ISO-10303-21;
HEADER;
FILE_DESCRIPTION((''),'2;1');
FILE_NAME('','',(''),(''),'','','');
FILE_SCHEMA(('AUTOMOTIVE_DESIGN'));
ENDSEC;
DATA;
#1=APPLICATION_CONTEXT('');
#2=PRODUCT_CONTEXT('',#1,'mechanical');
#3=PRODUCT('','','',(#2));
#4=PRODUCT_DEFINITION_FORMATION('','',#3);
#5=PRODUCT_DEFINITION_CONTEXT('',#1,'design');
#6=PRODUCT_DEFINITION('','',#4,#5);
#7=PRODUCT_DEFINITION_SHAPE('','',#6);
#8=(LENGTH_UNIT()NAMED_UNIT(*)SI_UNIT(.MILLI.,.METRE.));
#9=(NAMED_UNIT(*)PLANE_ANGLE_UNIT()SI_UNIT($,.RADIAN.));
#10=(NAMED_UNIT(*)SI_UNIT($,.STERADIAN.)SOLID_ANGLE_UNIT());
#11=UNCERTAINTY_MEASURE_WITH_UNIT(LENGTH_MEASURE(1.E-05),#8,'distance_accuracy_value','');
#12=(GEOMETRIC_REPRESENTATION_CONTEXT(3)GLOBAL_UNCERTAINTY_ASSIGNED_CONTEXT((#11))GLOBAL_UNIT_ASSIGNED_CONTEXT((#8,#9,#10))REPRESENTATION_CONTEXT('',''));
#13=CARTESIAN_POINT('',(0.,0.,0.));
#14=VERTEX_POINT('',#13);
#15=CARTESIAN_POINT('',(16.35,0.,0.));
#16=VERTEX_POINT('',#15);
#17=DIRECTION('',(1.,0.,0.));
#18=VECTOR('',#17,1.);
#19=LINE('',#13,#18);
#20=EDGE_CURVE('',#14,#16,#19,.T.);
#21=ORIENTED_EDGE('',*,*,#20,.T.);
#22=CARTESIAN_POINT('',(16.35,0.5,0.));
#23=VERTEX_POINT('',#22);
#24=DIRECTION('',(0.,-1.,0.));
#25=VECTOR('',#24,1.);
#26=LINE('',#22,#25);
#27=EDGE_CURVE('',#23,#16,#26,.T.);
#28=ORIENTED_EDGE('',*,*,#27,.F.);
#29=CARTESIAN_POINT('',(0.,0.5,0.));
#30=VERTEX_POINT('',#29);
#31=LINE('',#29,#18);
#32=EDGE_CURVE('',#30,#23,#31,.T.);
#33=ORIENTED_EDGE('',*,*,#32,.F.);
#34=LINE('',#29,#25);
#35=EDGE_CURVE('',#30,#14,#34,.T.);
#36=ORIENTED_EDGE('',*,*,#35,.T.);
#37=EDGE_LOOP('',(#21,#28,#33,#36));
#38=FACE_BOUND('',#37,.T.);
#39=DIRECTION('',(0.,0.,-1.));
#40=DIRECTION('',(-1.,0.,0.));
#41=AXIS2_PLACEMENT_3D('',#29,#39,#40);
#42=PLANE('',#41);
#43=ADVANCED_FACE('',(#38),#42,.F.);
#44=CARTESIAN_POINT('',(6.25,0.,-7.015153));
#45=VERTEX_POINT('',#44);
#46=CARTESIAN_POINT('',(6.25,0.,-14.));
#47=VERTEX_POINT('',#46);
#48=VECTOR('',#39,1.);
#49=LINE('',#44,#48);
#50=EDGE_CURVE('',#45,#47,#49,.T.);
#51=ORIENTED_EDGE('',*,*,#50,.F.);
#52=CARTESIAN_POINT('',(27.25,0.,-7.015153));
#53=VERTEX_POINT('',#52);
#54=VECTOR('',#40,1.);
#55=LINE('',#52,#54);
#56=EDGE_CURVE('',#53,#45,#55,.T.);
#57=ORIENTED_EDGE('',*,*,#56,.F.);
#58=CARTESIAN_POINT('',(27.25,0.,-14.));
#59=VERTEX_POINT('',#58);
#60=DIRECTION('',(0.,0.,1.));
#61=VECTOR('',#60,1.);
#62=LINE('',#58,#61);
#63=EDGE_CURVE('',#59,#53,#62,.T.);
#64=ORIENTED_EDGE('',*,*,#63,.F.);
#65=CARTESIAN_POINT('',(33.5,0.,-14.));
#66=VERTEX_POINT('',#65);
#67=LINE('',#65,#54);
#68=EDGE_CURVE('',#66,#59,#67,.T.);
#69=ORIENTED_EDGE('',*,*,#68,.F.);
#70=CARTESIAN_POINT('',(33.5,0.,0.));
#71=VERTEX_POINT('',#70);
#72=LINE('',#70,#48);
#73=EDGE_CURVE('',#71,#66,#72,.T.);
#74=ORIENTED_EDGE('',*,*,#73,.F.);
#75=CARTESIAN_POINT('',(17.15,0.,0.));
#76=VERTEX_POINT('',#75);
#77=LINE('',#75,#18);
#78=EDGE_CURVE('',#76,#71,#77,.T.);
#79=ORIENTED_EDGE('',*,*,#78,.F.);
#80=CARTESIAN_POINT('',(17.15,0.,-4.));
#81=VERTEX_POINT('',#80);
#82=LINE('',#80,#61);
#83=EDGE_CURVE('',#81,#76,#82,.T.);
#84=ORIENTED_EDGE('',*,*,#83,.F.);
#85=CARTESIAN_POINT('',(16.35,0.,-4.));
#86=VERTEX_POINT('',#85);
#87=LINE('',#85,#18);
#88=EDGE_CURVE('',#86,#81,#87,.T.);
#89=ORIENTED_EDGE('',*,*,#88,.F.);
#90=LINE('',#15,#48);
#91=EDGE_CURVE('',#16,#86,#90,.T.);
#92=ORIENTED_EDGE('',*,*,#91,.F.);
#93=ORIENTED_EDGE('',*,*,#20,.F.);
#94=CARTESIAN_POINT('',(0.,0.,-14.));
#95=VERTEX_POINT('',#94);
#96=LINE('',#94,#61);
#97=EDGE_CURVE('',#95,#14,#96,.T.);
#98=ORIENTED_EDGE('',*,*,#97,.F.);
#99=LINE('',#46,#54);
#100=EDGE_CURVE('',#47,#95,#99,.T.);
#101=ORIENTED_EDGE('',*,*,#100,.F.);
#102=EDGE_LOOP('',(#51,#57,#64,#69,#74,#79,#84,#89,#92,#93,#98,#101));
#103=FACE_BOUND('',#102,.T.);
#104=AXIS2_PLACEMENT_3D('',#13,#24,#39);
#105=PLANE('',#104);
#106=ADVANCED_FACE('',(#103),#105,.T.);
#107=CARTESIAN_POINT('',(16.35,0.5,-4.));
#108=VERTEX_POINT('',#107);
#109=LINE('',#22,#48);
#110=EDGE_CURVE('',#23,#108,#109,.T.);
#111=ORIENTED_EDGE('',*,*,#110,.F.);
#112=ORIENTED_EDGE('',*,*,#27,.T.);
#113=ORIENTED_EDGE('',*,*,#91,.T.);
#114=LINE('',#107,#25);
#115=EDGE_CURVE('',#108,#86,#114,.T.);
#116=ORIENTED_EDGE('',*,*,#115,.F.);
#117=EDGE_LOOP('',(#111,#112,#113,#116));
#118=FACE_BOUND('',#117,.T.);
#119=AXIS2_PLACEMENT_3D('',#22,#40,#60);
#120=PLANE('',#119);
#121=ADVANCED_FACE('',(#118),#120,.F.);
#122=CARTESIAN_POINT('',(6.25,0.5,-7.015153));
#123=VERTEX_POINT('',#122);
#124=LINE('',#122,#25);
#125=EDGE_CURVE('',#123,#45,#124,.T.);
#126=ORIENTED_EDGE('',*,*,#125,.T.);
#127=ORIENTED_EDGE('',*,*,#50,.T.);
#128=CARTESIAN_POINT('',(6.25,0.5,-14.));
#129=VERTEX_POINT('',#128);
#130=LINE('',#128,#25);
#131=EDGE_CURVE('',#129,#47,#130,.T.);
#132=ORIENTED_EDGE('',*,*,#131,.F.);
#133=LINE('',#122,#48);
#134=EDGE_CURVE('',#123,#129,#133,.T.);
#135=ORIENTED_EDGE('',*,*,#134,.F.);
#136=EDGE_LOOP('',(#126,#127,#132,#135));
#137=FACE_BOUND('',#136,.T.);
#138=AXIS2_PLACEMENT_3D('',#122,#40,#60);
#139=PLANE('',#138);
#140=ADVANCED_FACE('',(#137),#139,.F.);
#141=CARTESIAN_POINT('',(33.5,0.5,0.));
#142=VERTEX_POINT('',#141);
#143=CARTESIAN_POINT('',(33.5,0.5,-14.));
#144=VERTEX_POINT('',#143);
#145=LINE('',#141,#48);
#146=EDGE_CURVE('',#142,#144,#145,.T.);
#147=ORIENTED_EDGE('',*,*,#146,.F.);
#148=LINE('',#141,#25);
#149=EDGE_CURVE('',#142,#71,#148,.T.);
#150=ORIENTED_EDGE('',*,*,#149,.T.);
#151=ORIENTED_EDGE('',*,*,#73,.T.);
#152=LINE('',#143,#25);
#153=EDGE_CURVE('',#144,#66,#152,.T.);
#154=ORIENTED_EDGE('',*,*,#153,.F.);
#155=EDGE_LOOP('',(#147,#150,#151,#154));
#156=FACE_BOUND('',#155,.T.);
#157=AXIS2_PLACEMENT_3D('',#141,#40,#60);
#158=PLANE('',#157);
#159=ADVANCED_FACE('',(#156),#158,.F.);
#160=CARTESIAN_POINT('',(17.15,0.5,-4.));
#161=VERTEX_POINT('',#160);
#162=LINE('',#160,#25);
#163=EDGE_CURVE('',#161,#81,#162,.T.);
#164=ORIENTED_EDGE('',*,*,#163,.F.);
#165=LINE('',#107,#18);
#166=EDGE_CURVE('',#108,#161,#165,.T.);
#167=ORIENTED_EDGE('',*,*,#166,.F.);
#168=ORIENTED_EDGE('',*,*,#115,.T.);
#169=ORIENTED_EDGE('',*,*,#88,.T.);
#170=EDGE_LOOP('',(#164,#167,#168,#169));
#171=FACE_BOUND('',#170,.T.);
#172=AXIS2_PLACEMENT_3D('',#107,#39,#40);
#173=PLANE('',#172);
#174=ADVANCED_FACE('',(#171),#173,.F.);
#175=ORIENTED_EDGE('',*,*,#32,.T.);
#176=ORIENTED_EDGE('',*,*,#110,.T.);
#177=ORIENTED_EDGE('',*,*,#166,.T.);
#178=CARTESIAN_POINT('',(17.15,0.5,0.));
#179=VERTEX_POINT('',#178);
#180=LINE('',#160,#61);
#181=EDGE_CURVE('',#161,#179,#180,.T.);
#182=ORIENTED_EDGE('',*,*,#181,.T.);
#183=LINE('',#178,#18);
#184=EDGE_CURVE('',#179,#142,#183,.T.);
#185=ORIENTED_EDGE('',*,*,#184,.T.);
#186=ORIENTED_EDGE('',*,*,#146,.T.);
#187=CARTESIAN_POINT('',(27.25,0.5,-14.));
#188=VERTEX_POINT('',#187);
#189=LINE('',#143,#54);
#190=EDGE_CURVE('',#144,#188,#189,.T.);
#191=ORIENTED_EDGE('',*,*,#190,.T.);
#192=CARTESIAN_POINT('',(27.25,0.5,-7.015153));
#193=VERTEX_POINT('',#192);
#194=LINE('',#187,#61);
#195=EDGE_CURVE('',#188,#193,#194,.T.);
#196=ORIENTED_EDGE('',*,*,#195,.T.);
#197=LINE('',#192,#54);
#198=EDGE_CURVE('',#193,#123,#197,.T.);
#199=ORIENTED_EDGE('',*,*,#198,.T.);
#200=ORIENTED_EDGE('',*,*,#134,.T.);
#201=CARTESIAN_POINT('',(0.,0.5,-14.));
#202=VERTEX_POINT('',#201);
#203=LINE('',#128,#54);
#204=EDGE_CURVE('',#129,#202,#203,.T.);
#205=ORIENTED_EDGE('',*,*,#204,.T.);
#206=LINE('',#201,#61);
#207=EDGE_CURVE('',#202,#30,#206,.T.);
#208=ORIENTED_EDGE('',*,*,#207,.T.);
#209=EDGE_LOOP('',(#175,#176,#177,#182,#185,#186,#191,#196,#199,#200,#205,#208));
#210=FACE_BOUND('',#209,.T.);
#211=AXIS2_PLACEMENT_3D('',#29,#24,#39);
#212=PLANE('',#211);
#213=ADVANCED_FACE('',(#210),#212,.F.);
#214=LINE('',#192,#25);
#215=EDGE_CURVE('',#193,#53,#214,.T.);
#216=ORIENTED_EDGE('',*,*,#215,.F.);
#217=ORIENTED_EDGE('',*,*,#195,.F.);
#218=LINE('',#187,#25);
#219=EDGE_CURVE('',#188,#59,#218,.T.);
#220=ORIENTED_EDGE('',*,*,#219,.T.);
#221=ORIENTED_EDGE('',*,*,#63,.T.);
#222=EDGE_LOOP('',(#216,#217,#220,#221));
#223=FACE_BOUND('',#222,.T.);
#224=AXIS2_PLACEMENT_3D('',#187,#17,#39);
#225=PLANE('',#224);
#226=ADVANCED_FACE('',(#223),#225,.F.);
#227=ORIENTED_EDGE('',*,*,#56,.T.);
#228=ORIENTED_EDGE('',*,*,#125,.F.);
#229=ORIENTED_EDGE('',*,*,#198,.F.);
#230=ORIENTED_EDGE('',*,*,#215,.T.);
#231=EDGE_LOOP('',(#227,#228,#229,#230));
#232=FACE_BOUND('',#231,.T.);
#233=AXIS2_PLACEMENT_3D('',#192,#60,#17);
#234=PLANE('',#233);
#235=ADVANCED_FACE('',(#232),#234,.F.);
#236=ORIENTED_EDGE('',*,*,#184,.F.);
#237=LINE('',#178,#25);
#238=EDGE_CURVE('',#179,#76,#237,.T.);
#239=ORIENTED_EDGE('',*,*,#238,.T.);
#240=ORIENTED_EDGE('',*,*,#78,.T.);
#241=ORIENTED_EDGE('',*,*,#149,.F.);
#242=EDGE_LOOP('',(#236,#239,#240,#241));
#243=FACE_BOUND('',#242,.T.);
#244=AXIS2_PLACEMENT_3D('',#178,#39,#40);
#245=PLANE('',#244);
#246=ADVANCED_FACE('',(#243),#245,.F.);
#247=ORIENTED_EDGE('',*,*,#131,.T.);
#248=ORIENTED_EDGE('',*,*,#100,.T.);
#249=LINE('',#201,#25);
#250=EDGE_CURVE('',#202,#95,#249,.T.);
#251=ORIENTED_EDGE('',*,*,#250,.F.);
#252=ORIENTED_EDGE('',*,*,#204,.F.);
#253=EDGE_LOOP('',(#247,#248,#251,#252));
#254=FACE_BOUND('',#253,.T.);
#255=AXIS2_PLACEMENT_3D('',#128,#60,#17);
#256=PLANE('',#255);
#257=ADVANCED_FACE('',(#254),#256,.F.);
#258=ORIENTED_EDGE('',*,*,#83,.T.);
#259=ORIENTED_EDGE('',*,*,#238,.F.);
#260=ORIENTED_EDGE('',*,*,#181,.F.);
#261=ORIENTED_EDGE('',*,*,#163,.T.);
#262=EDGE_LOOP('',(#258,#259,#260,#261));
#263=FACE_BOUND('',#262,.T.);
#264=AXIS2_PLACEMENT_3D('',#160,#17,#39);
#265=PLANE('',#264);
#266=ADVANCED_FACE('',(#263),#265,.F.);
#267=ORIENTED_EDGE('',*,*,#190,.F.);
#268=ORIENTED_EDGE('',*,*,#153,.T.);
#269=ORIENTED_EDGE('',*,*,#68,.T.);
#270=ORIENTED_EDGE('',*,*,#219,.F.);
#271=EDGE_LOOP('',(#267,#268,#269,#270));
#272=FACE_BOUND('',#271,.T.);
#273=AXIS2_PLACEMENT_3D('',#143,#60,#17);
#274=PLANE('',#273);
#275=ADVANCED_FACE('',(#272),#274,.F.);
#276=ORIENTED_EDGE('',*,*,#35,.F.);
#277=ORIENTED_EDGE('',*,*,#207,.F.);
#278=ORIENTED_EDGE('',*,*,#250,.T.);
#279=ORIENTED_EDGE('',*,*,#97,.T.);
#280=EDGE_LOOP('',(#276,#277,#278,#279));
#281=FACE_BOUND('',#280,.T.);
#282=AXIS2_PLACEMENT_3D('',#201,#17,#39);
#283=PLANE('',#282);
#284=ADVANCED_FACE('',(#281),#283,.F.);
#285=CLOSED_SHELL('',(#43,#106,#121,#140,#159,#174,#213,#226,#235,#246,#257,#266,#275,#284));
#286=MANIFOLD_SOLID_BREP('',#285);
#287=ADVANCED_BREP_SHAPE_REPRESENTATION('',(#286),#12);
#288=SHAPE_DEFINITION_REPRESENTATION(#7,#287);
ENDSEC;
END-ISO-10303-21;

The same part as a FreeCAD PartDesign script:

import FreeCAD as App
import Part
import Sketcher

doc = App.newDocument("Part")
body = doc.addObject("PartDesign::Body", "Body")

# Sketch on XZ plane
sketch1 = body.newObject("Sketcher::SketchObject", "Sketch")
sketch1.AttachmentSupport = (doc.getObject("XZ_Plane"), [""])
sketch1.MapMode = "FlatFace"
sketch1.addGeometry([
    Part.LineSegment(App.Vector(0, 0, 0), App.Vector(16.35, 0, 0)),  # 0
    Part.LineSegment(App.Vector(16.35, 0, 0), App.Vector(16.35, -4, 0)),  # 1
    Part.LineSegment(App.Vector(16.35, -4, 0), App.Vector(17.15, -4, 0)),  # 2
    Part.LineSegment(App.Vector(17.15, -4, 0), App.Vector(17.15, 0, 0)),  # 3
    Part.LineSegment(App.Vector(17.15, 0, 0), App.Vector(33.5, 0, 0)),  # 4
    Part.LineSegment(App.Vector(33.5, 0, 0), App.Vector(33.5, -14, 0)),  # 5
    Part.LineSegment(App.Vector(33.5, -14, 0), App.Vector(27.25, -14, 0)),  # 6
    Part.LineSegment(App.Vector(27.25, -14, 0), App.Vector(27.25, -7.015153, 0)),  # 7
    Part.LineSegment(App.Vector(27.25, -7.015153, 0), App.Vector(6.25, -7.015153, 0)),  # 8
    Part.LineSegment(App.Vector(6.25, -7.015153, 0), App.Vector(6.25, -14, 0)),  # 9
    Part.LineSegment(App.Vector(6.25, -14, 0), App.Vector(0, -14, 0)),  # 10
    Part.LineSegment(App.Vector(0, -14, 0), App.Vector(0, 0, 0)),  # 11
], False)
sketch1.addConstraint([
    Sketcher.Constraint("Coincident", 0, 2, 1, 1),
    Sketcher.Constraint("Coincident", 1, 2, 2, 1),
    Sketcher.Constraint("Coincident", 2, 2, 3, 1),
    Sketcher.Constraint("Coincident", 3, 2, 4, 1),
    Sketcher.Constraint("Coincident", 4, 2, 5, 1),
    Sketcher.Constraint("Coincident", 5, 2, 6, 1),
    Sketcher.Constraint("Coincident", 6, 2, 7, 1),
    Sketcher.Constraint("Coincident", 7, 2, 8, 1),
    Sketcher.Constraint("Coincident", 8, 2, 9, 1),
    Sketcher.Constraint("Coincident", 9, 2, 10, 1),
    Sketcher.Constraint("Coincident", 10, 2, 11, 1),
    Sketcher.Constraint("Coincident", 11, 2, 0, 1),
    Sketcher.Constraint("Horizontal", 0),
    Sketcher.Constraint("Vertical", 1),
    Sketcher.Constraint("Horizontal", 2),
    Sketcher.Constraint("Vertical", 3),
    Sketcher.Constraint("Horizontal", 4),
    Sketcher.Constraint("Vertical", 5),
    Sketcher.Constraint("Horizontal", 6),
    Sketcher.Constraint("Vertical", 7),
    Sketcher.Constraint("Horizontal", 8),
    Sketcher.Constraint("Vertical", 9),
    Sketcher.Constraint("Horizontal", 10),
    Sketcher.Constraint("Vertical", 11),
    Sketcher.Constraint("Coincident", 11, 2, -1, 1),
    Sketcher.Constraint("PointOnObject", 3, 2, -1),
    Sketcher.Constraint("Horizontal", 6, 2, 9, 2),
    Sketcher.Constraint("Equal", 0, 4),
    Sketcher.Constraint("Equal", 6, 10),
    Sketcher.Constraint("DistanceX", 8, 2, 8, 1, 21.0),
    Sketcher.Constraint("DistanceY", 1, 2, 1, 1, 4.0),
    Sketcher.Constraint("DistanceY", 5, 2, 5, 1, 14.0),
    Sketcher.Constraint("DistanceX", 2, 1, 2, 2, 0.8),
    Sketcher.Constraint("DistanceX", 0, 1, 0, 2, 16.35),
    Sketcher.Constraint("DistanceY", 7, 1, 7, 2, 6.984847),
])
pad1 = body.newObject("PartDesign::Pad", "Pad")
pad1.Profile = sketch1
pad1.Length = 0.5
pad1.Reversed = True

doc.recompute()
